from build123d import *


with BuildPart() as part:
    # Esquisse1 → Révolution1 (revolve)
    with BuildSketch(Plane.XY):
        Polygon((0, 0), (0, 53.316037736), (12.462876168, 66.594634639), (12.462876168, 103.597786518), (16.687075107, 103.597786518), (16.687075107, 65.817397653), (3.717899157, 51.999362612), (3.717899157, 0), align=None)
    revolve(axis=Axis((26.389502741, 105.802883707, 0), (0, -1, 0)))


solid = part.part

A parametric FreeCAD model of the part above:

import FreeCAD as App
import Part
import Sketcher
from FreeCAD import Vector

doc = App.newDocument("Part")
params = doc.addObject("Spreadsheet::Sheet", "Params")
for row, (alias, value) in enumerate([
    ("revolution_angle", "360 deg"),
], start=1):
    params.set(f"A{row}", alias)
    params.set(f"B{row}", "=" + value)
    params.setAlias(f"B{row}", alias)

body = doc.addObject("PartDesign::Body", "Body")

# Sketch on XY plane
sketch1 = body.newObject("Sketcher::SketchObject", "Sketch")
sketch1.AttachmentSupport = (doc.getObject("XY_Plane"), [""])
sketch1.MapMode = "FlatFace"
sketch1.addGeometry([
    Part.LineSegment(Vector(0, 53.316038, 0), Vector(0, 0, 0)),  # 0
    Part.LineSegment(Vector(0, 0, 0), Vector(3.717899, 0, 0)),  # 1
    Part.LineSegment(Vector(3.717899, 0, 0), Vector(3.717899, 51.999363, 0)),  # 2
    Part.LineSegment(Vector(3.717899, 51.999363, 0), Vector(16.687075, 65.817398, 0)),  # 3
    Part.LineSegment(Vector(16.687075, 65.817398, 0), Vector(16.687075, 103.597787, 0)),  # 4
    Part.LineSegment(Vector(16.687075, 103.597787, 0), Vector(12.462876, 103.597787, 0)),  # 5
    Part.LineSegment(Vector(12.462876, 103.597787, 0), Vector(12.462876, 66.594635, 0)),  # 6
    Part.LineSegment(Vector(12.462876, 66.594635, 0), Vector(0, 53.316038, 0)),  # 7
], False)
sketch1.addGeometry(Part.LineSegment(Vector(26.389503, 103.597787, 0), Vector(26.389503, 0, 0)), True)  # axis
sketch1.addConstraint([
    Sketcher.Constraint("Coincident", 0, 2, 1, 1),
    Sketcher.Constraint("Coincident", 1, 2, 2, 1),
    Sketcher.Constraint("Coincident", 2, 2, 3, 1),
    Sketcher.Constraint("Coincident", 3, 2, 4, 1),
    Sketcher.Constraint("Coincident", 4, 2, 5, 1),
    Sketcher.Constraint("Coincident", 5, 2, 6, 1),
    Sketcher.Constraint("Coincident", 6, 2, 7, 1),
    Sketcher.Constraint("Coincident", 7, 2, 0, 1),
    Sketcher.Constraint("Vertical", 0),
    Sketcher.Constraint("Horizontal", 1),
    Sketcher.Constraint("Vertical", 2),
    Sketcher.Constraint("Vertical", 4),
    Sketcher.Constraint("Horizontal", 5),
    Sketcher.Constraint("Vertical", 6),
    Sketcher.Constraint("Vertical", 8),
    Sketcher.Constraint("Coincident", 0, 2, -1, 1),
    Sketcher.Constraint("PointOnObject", 8, 2, -1),
    Sketcher.Constraint("Parallel", 3, 7),
    Sketcher.Constraint("Horizontal", 5, 2, 8, 1),
    Sketcher.Constraint("DistanceX", 1, 1, 1, 2, 3.717899),
    Sketcher.Constraint("DistanceX", 5, 2, 5, 1, 4.224199),
    Sketcher.Constraint("DistanceY", 4, 1, 4, 2, 37.780389),
    Sketcher.Constraint("DistanceY", 6, 2, 6, 1, 37.003152),
    Sketcher.Constraint("DistanceY", 0, 2, 0, 1, 53.316038),
    Sketcher.Constraint("DistanceY", 2, 1, 2, 2, 51.999363),
    Sketcher.Constraint("DistanceY", 8, 2, 8, 1, 103.597787),
    Sketcher.Constraint("DistanceX", -1, 1, 8, 1, 26.389503),
])
revolution = body.newObject("PartDesign::Revolution", "Revolution")
revolution.Profile = sketch1
revolution.ReferenceAxis = (sketch1, ["Axis0"])
revolution.setExpression("Angle", "Params.revolution_angle")

doc.recompute()
